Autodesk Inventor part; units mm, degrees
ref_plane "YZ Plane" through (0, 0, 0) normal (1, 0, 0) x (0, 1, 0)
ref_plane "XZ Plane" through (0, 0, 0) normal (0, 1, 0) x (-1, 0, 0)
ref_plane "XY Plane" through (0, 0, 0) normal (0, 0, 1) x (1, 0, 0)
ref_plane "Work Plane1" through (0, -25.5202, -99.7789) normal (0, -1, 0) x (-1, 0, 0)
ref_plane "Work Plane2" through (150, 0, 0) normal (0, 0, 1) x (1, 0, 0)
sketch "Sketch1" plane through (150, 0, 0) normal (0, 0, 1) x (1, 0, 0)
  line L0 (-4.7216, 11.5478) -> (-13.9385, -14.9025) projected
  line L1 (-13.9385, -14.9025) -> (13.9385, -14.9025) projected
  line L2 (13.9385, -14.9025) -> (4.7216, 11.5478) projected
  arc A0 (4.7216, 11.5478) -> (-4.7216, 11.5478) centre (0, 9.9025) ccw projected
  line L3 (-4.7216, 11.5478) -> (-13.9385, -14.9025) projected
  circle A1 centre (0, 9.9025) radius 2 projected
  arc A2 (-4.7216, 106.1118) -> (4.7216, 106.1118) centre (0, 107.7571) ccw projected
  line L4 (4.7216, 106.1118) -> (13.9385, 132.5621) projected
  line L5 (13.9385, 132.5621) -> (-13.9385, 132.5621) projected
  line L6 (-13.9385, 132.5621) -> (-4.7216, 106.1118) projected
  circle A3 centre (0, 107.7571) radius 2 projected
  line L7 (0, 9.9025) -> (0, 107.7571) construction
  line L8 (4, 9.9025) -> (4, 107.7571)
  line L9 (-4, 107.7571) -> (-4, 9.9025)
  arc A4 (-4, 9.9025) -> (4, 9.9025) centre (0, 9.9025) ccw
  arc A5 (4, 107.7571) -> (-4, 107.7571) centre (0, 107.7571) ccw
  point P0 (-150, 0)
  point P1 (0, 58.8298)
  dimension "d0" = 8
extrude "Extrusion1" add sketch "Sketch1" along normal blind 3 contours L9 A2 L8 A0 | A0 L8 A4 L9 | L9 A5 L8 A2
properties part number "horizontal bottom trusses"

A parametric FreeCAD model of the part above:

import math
import FreeCAD as App
import Part
import Sketcher

V = App.Vector

doc = App.newDocument("Part")
body = doc.addObject("PartDesign::Body", "Body")

# Sketch on XY plane
sketch1 = doc.addObject("Sketcher::SketchObject", "Sketch")
body.addObject(sketch1)
sketch1.AttachmentSupport = (doc.XY_Plane, [""])
sketch1.MapMode = "FlatFace"
sketch1.addGeometry(Part.ArcOfCircle(Part.Circle(V(150, 9.9, 0), V(0, 0, 1), 4), math.radians(180), math.radians(360)), False)
sketch1.addGeometry(Part.LineSegment(V(154, 9.9, 0), V(154, 107.8, 0)), False)
sketch1.addGeometry(Part.ArcOfCircle(Part.Circle(V(150, 107.8, 0), V(0, 0, 1), 4), math.radians(0), math.radians(180)), False)
sketch1.addGeometry(Part.LineSegment(V(146, 107.8, 0), V(146, 9.9, 0)), False)
sketch1.addGeometry(Part.Circle(V(150, 107.8, 0), V(0, 0, 1), 2), False)
sketch1.addGeometry(Part.Circle(V(150, 9.9, 0), V(0, 0, 1), 2), False)
sketch1.addConstraint(Sketcher.Constraint("Tangent", 0, 2, 1, 1))
sketch1.addConstraint(Sketcher.Constraint("Tangent", 1, 2, 2, 1))
sketch1.addConstraint(Sketcher.Constraint("Tangent", 2, 2, 3, 1))
sketch1.addConstraint(Sketcher.Constraint("Tangent", 3, 2, 0, 1))
sketch1.addConstraint(Sketcher.Constraint("Vertical", 1))
sketch1.addConstraint(Sketcher.Constraint("Vertical", 3))
sketch1.addConstraint(Sketcher.Constraint("Coincident", 4, 3, 2, 3))
sketch1.addConstraint(Sketcher.Constraint("Coincident", 5, 3, 0, 3))
sketch1.addConstraint(Sketcher.Constraint("Equal", 4, 5))
sketch1.addConstraint(Sketcher.Constraint("Radius", 0, 4.0))
sketch1.addConstraint(Sketcher.Constraint("Diameter", 4, 4.0))
sketch1.addConstraint(Sketcher.Constraint("DistanceX", -1, 1, 0, 3, 150.0))
sketch1.addConstraint(Sketcher.Constraint("DistanceY", 1, 1, 1, 2, 97.8546))
sketch1.addConstraint(Sketcher.Constraint("DistanceY", -1, 1, 2, 3, 107.757))
pad1 = doc.addObject("PartDesign::Pad", "Pad")
body.addObject(pad1)
pad1.Profile = sketch1
pad1.Length = 3

doc.recompute()
